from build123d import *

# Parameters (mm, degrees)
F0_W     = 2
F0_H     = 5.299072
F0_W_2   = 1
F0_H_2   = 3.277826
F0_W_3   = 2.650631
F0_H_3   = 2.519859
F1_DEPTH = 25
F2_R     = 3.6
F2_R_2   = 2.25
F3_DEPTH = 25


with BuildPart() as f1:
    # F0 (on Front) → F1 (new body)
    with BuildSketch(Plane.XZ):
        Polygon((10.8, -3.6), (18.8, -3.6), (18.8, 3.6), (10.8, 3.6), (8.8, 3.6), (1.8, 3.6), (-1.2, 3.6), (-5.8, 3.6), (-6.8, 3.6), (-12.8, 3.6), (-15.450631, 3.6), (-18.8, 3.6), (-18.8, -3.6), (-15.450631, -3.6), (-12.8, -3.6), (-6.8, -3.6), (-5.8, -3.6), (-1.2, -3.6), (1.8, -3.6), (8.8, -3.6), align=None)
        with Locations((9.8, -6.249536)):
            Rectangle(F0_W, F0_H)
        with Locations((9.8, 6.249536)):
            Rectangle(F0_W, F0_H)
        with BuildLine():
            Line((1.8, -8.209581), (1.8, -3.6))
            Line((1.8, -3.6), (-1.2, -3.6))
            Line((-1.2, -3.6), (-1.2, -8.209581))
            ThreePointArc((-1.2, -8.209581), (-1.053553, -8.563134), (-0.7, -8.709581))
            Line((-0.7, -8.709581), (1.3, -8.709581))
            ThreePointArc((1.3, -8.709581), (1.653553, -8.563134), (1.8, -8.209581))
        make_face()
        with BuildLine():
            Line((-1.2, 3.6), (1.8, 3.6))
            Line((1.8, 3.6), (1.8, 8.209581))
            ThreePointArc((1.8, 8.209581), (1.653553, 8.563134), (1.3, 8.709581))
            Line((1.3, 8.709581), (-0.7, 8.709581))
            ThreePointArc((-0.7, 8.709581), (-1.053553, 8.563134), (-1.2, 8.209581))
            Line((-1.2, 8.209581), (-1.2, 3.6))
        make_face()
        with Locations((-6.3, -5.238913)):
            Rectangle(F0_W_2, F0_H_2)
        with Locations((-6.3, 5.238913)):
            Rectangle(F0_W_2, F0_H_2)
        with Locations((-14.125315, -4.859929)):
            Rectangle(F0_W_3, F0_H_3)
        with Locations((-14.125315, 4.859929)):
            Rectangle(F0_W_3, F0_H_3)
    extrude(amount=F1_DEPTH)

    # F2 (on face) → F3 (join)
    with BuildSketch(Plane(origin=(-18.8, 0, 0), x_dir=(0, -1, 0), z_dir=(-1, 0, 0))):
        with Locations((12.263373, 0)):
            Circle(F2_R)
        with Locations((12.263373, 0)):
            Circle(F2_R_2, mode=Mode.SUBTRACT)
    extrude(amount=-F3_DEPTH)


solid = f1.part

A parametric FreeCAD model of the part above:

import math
import FreeCAD as App
import Part
import Sketcher

doc = App.newDocument("Part")
params = doc.addObject("Spreadsheet::Sheet", "Params")
for row, (alias, value) in enumerate([
    ("sketch1_radius", "0.500001 mm"),
    ("sketch1_width", "8 mm"),
    ("sketch1_width2", "2 mm"),
    ("sketch1_width3", "7 mm"),
    ("sketch1_width4", "1 mm"),
    ("pad1_length", "25 mm"),
    ("sketch2_diameter", "7.2 mm"),
    ("sketch2_diameter2", "4.5 mm"),
    ("pad2_length", "25 mm"),
], start=1):
    params.set(f"A{row}", alias)
    params.set(f"B{row}", "=" + value)
    params.setAlias(f"B{row}", alias)

body = doc.addObject("PartDesign::Body", "Body")

sketch1 = body.newObject("Sketcher::SketchObject", "Sketch")
sketch1.AttachmentSupport = (doc.getObject("XZ_Plane"), [""])
sketch1.MapMode = "FlatFace"
sketch1.addGeometry([
    Part.LineSegment(App.Vector(10.8, -8.9, 0), App.Vector(10.8, -3.6, 0)),
    Part.LineSegment(App.Vector(10.8, -3.6, 0), App.Vector(18.8, -3.6, 0)),
    Part.LineSegment(App.Vector(18.8, -3.6, 0), App.Vector(18.8, 3.6, 0)),
    Part.LineSegment(App.Vector(18.8, 3.6, 0), App.Vector(10.8, 3.6, 0)),
    Part.LineSegment(App.Vector(10.8, 3.6, 0), App.Vector(10.8, 8.9, 0)),
    Part.LineSegment(App.Vector(10.8, 8.9, 0), App.Vector(8.8, 8.9, 0)),
    Part.LineSegment(App.Vector(8.8, 8.9, 0), App.Vector(8.8, 3.6, 0)),
    Part.LineSegment(App.Vector(8.8, 3.6, 0), App.Vector(1.8, 3.6, 0)),
    Part.LineSegment(App.Vector(1.8, 3.6, 0), App.Vector(1.8, 8.2, 0)),
    Part.ArcOfCircle(Part.Circle(App.Vector(1.3, 8.2, 0), App.Vector(0, 0, 1), 0.5), math.radians(0), math.radians(90)),
    Part.LineSegment(App.Vector(1.3, 8.7, 0), App.Vector(-0.7, 8.7, 0)),
    Part.ArcOfCircle(Part.Circle(App.Vector(-0.7, 8.2, 0), App.Vector(0, 0, 1), 0.5), math.radians(90), math.radians(180)),
    Part.LineSegment(App.Vector(-1.2, 8.2, 0), App.Vector(-1.2, 3.6, 0)),
    Part.LineSegment(App.Vector(-1.2, 3.6, 0), App.Vector(-5.8, 3.6, 0)),
    Part.LineSegment(App.Vector(-5.8, 3.6, 0), App.Vector(-5.8, 6.9, 0)),
    Part.LineSegment(App.Vector(-5.8, 6.9, 0), App.Vector(-6.8, 6.9, 0)),
    Part.LineSegment(App.Vector(-6.8, 6.9, 0), App.Vector(-6.8, 3.6, 0)),
    Part.LineSegment(App.Vector(-6.8, 3.6, 0), App.Vector(-12.8, 3.6, 0)),
    Part.LineSegment(App.Vector(-12.8, 3.6, 0), App.Vector(-12.8, 6.1, 0)),
    Part.LineSegment(App.Vector(-12.8, 6.1, 0), App.Vector(-15.5, 6.1, 0)),
    Part.LineSegment(App.Vector(-15.5, 6.1, 0), App.Vector(-15.5, 3.6, 0)),
    Part.LineSegment(App.Vector(-15.5, 3.6, 0), App.Vector(-18.8, 3.6, 0)),
    Part.LineSegment(App.Vector(-18.8, 3.6, 0), App.Vector(-18.8, -3.6, 0)),
    Part.LineSegment(App.Vector(-18.8, -3.6, 0), App.Vector(-15.5, -3.6, 0)),
    Part.LineSegment(App.Vector(-15.5, -3.6, 0), App.Vector(-15.5, -6.1, 0)),
    Part.LineSegment(App.Vector(-15.5, -6.1, 0), App.Vector(-12.8, -6.1, 0)),
    Part.LineSegment(App.Vector(-12.8, -6.1, 0), App.Vector(-12.8, -3.6, 0)),
    Part.LineSegment(App.Vector(-12.8, -3.6, 0), App.Vector(-6.8, -3.6, 0)),
    Part.LineSegment(App.Vector(-6.8, -3.6, 0), App.Vector(-6.8, -6.9, 0)),
    Part.LineSegment(App.Vector(-6.8, -6.9, 0), App.Vector(-5.8, -6.9, 0)),
    Part.LineSegment(App.Vector(-5.8, -6.9, 0), App.Vector(-5.8, -3.6, 0)),
    Part.LineSegment(App.Vector(-5.8, -3.6, 0), App.Vector(-1.2, -3.6, 0)),
    Part.LineSegment(App.Vector(-1.2, -3.6, 0), App.Vector(-1.2, -8.2, 0)),
    Part.ArcOfCircle(Part.Circle(App.Vector(-0.7, -8.2, 0), App.Vector(0, 0, 1), 0.5), math.radians(-180), math.radians(-90)),
    Part.LineSegment(App.Vector(-0.7, -8.7, 0), App.Vector(1.3, -8.7, 0)),
    Part.ArcOfCircle(Part.Circle(App.Vector(1.3, -8.2, 0), App.Vector(0, 0, 1), 0.5), math.radians(-90), math.radians(0)),
    Part.LineSegment(App.Vector(1.8, -8.2, 0), App.Vector(1.8, -3.6, 0)),
    Part.LineSegment(App.Vector(1.8, -3.6, 0), App.Vector(8.8, -3.6, 0)),
    Part.LineSegment(App.Vector(8.8, -3.6, 0), App.Vector(8.8, -8.9, 0)),
    Part.LineSegment(App.Vector(8.8, -8.9, 0), App.Vector(10.8, -8.9, 0)),
], False)
sketch1.addConstraint([
    Sketcher.Constraint("Coincident", 0, 2, 1, 1),
    Sketcher.Constraint("Coincident", 1, 2, 2, 1),
    Sketcher.Constraint("Coincident", 2, 2, 3, 1),
    Sketcher.Constraint("Coincident", 3, 2, 4, 1),
    Sketcher.Constraint("Coincident", 4, 2, 5, 1),
    Sketcher.Constraint("Coincident", 5, 2, 6, 1),
    Sketcher.Constraint("Coincident", 6, 2, 7, 1),
    Sketcher.Constraint("Coincident", 7, 2, 8, 1),
    Sketcher.Constraint("Coincident", 8, 2, 9, 1),
    Sketcher.Constraint("Coincident", 9, 2, 10, 1),
    Sketcher.Constraint("Coincident", 10, 2, 11, 1),
    Sketcher.Constraint("Coincident", 11, 2, 12, 1),
    Sketcher.Constraint("Coincident", 12, 2, 13, 1),
    Sketcher.Constraint("Coincident", 13, 2, 14, 1),
    Sketcher.Constraint("Coincident", 14, 2, 15, 1),
    Sketcher.Constraint("Coincident", 15, 2, 16, 1),
    Sketcher.Constraint("Coincident", 16, 2, 17, 1),
    Sketcher.Constraint("Coincident", 17, 2, 18, 1),
    Sketcher.Constraint("Coincident", 18, 2, 19, 1),
    Sketcher.Constraint("Coincident", 19, 2, 20, 1),
    Sketcher.Constraint("Coincident", 20, 2, 21, 1),
    Sketcher.Constraint("Coincident", 21, 2, 22, 1),
    Sketcher.Constraint("Coincident", 22, 2, 23, 1),
    Sketcher.Constraint("Coincident", 23, 2, 24, 1),
    Sketcher.Constraint("Coincident", 24, 2, 25, 1),
    Sketcher.Constraint("Coincident", 25, 2, 26, 1),
    Sketcher.Constraint("Coincident", 26, 2, 27, 1),
    Sketcher.Constraint("Coincident", 27, 2, 28, 1),
    Sketcher.Constraint("Coincident", 28, 2, 29, 1),
    Sketcher.Constraint("Coincident", 29, 2, 30, 1),
    Sketcher.Constraint("Coincident", 30, 2, 31, 1),
    Sketcher.Constraint("Coincident", 31, 2, 32, 1),
    Sketcher.Constraint("Coincident", 32, 2, 33, 1),
    Sketcher.Constraint("Coincident", 33, 2, 34, 1),
    Sketcher.Constraint("Coincident", 34, 2, 35, 1),
    Sketcher.Constraint("Coincident", 35, 2, 36, 1),
    Sketcher.Constraint("Coincident", 36, 2, 37, 1),
    Sketcher.Constraint("Coincident", 37, 2, 38, 1),
    Sketcher.Constraint("Coincident", 38, 2, 39, 1),
    Sketcher.Constraint("Coincident", 39, 2, 0, 1),
    Sketcher.Constraint("Vertical", 0),
    Sketcher.Constraint("Horizontal", 1),
    Sketcher.Constraint("Vertical", 2),
    Sketcher.Constraint("Horizontal", 3),
    Sketcher.Constraint("Vertical", 4),
    Sketcher.Constraint("Horizontal", 5),
    Sketcher.Constraint("Vertical", 6),
    Sketcher.Constraint("Horizontal", 7),
    Sketcher.Constraint("Vertical", 8),
    Sketcher.Constraint("Horizontal", 10),
    Sketcher.Constraint("Vertical", 12),
    Sketcher.Constraint("Horizontal", 13),
    Sketcher.Constraint("Vertical", 14),
    Sketcher.Constraint("Horizontal", 15),
    Sketcher.Constraint("Vertical", 16),
    Sketcher.Constraint("Horizontal", 17),
    Sketcher.Constraint("Vertical", 18),
    Sketcher.Constraint("Horizontal", 19),
    Sketcher.Constraint("Vertical", 20),
    Sketcher.Constraint("Horizontal", 21),
    Sketcher.Constraint("Vertical", 22),
    Sketcher.Constraint("Horizontal", 23),
    Sketcher.Constraint("Vertical", 24),
    Sketcher.Constraint("Horizontal", 25),
    Sketcher.Constraint("Vertical", 26),
    Sketcher.Constraint("Horizontal", 27),
    Sketcher.Constraint("Vertical", 28),
    Sketcher.Constraint("Horizontal", 29),
    Sketcher.Constraint("Vertical", 30),
    Sketcher.Constraint("Horizontal", 31),
    Sketcher.Constraint("Vertical", 32),
    Sketcher.Constraint("Horizontal", 34),
    Sketcher.Constraint("Vertical", 36),
    Sketcher.Constraint("Horizontal", 37),
    Sketcher.Constraint("Vertical", 38),
    Sketcher.Constraint("Horizontal", 39),
    Sketcher.Constraint("Equal", 9, 11),
    Sketcher.Constraint("Equal", 11, 33),
    Sketcher.Constraint("Equal", 33, 35),
    Sketcher.Constraint("Symmetric", 1, 2, 21, 2, -1, 1),
    Sketcher.Constraint("Symmetric", 11, 3, 33, 3, -1),
    Sketcher.Constraint("Symmetric", 0, 2, 3, 2, -1),
    Sketcher.Constraint("Symmetric", 20, 2, 23, 2, -1),
    Sketcher.Constraint("Symmetric", 18, 2, 25, 2, -1),
    Sketcher.Constraint("Symmetric", 16, 2, 27, 2, -1),
    Sketcher.Constraint("Symmetric", 14, 2, 29, 2, -1),
    Sketcher.Constraint("Symmetric", 8, 2, 35, 2, -1),
    Sketcher.Constraint("Symmetric", 6, 2, 37, 2, -1),
    Sketcher.Constraint("Horizontal", 3, 2, 6, 2),
    Sketcher.Constraint("Horizontal", 11, 3, 8, 2),
    Sketcher.Constraint("Horizontal", 8, 2, 11, 2),
    Sketcher.Constraint("Horizontal", 7, 2, 12, 2),
    Sketcher.Constraint("Horizontal", 13, 2, 16, 2),
    Sketcher.Constraint("Horizontal", 27, 2, 30, 2),
    Sketcher.Constraint("Horizontal", 35, 3, 32, 2),
    Sketcher.Constraint("Vertical", 35, 3, 9, 2),
    Sketcher.Constraint("Vertical", 33, 3, 10, 2),
    Sketcher.Constraint("Vertical", 10, 2, 33, 2),
    Sketcher.Constraint("Vertical", 9, 2, 34, 2),
    Sketcher.Constraint("Equal", 5, 10),
    Sketcher.Constraint("Equal", 0, 4),
    Sketcher.Constraint("Radius", 9, 0.500001),
    Sketcher.Constraint("DistanceX", 1, 1, 1, 2, 8.0),
    Sketcher.Constraint("DistanceX", 5, 2, 5, 1, 2.0),
    Sketcher.Constraint("DistanceX", 7, 2, 7, 1, 7.0),
    Sketcher.Constraint("DistanceX", 15, 2, 15, 1, 1.0),
    Sketcher.Constraint("DistanceX", 17, 2, 17, 1, 6.0),
    Sketcher.Constraint("DistanceX", 13, 2, 13, 1, 4.6),
    Sketcher.Constraint("DistanceY", 2, 1, 2, 2, 7.2),
    Sketcher.Constraint("DistanceX", 21, 2, 17, 2, 6.000001),
    Sketcher.Constraint("DistanceX", 19, 2, 19, 1, 2.650631),
    Sketcher.Constraint("DistanceY", 8, 1, 8, 2, 4.609581),
    Sketcher.Constraint("DistanceY", 18, 1, 18, 2, 2.519859),
    Sketcher.Constraint("DistanceY", 0, 1, 0, 2, 5.299072),
    Sketcher.Constraint("DistanceY", 14, 1, 14, 2, 3.277826),
])
sketch1.setExpression("Constraints[101]", "Params.sketch1_radius")
sketch1.setExpression("Constraints[102]", "Params.sketch1_width")
sketch1.setExpression("Constraints[103]", "Params.sketch1_width2")
sketch1.setExpression("Constraints[104]", "Params.sketch1_width3")
sketch1.setExpression("Constraints[105]", "Params.sketch1_width4")
pad1 = body.newObject("PartDesign::Pad", "Pad")
pad1.Profile = sketch1
pad1.setExpression("Length", "Params.pad1_length")

sketch2 = body.newObject("Sketcher::SketchObject", "Sketch001")
sketch2.AttachmentSupport = (doc.getObject("YZ_Plane"), [""])
sketch2.MapMode = "FlatFace"
sketch2.AttachmentOffset = App.Placement(App.Vector(0, 0, -18.8), App.Rotation())
sketch2.addGeometry([
    Part.Circle(App.Vector(-12.3, 0, 0), App.Vector(0, 0, 1), 3.6),
    Part.Circle(App.Vector(-12.3, 0, 0), App.Vector(0, 0, 1), 2.2),
], False)
sketch2.addConstraint([
    Sketcher.Constraint("Coincident", 1, 3, 0, 3),
    Sketcher.Constraint("PointOnObject", 0, 3, -1),
    Sketcher.Constraint("Diameter", 0, 7.2),
    Sketcher.Constraint("Diameter", 1, 4.5),
    Sketcher.Constraint("DistanceX", 0, 3, -1, 1, 12.263373),
])
sketch2.setExpression("Constraints[2]", "Params.sketch2_diameter")
sketch2.setExpression("Constraints[3]", "Params.sketch2_diameter2")
pad2 = body.newObject("PartDesign::Pad", "Pad001")
pad2.Profile = sketch2
pad2.setExpression("Length", "Params.pad2_length")

doc.recompute()
